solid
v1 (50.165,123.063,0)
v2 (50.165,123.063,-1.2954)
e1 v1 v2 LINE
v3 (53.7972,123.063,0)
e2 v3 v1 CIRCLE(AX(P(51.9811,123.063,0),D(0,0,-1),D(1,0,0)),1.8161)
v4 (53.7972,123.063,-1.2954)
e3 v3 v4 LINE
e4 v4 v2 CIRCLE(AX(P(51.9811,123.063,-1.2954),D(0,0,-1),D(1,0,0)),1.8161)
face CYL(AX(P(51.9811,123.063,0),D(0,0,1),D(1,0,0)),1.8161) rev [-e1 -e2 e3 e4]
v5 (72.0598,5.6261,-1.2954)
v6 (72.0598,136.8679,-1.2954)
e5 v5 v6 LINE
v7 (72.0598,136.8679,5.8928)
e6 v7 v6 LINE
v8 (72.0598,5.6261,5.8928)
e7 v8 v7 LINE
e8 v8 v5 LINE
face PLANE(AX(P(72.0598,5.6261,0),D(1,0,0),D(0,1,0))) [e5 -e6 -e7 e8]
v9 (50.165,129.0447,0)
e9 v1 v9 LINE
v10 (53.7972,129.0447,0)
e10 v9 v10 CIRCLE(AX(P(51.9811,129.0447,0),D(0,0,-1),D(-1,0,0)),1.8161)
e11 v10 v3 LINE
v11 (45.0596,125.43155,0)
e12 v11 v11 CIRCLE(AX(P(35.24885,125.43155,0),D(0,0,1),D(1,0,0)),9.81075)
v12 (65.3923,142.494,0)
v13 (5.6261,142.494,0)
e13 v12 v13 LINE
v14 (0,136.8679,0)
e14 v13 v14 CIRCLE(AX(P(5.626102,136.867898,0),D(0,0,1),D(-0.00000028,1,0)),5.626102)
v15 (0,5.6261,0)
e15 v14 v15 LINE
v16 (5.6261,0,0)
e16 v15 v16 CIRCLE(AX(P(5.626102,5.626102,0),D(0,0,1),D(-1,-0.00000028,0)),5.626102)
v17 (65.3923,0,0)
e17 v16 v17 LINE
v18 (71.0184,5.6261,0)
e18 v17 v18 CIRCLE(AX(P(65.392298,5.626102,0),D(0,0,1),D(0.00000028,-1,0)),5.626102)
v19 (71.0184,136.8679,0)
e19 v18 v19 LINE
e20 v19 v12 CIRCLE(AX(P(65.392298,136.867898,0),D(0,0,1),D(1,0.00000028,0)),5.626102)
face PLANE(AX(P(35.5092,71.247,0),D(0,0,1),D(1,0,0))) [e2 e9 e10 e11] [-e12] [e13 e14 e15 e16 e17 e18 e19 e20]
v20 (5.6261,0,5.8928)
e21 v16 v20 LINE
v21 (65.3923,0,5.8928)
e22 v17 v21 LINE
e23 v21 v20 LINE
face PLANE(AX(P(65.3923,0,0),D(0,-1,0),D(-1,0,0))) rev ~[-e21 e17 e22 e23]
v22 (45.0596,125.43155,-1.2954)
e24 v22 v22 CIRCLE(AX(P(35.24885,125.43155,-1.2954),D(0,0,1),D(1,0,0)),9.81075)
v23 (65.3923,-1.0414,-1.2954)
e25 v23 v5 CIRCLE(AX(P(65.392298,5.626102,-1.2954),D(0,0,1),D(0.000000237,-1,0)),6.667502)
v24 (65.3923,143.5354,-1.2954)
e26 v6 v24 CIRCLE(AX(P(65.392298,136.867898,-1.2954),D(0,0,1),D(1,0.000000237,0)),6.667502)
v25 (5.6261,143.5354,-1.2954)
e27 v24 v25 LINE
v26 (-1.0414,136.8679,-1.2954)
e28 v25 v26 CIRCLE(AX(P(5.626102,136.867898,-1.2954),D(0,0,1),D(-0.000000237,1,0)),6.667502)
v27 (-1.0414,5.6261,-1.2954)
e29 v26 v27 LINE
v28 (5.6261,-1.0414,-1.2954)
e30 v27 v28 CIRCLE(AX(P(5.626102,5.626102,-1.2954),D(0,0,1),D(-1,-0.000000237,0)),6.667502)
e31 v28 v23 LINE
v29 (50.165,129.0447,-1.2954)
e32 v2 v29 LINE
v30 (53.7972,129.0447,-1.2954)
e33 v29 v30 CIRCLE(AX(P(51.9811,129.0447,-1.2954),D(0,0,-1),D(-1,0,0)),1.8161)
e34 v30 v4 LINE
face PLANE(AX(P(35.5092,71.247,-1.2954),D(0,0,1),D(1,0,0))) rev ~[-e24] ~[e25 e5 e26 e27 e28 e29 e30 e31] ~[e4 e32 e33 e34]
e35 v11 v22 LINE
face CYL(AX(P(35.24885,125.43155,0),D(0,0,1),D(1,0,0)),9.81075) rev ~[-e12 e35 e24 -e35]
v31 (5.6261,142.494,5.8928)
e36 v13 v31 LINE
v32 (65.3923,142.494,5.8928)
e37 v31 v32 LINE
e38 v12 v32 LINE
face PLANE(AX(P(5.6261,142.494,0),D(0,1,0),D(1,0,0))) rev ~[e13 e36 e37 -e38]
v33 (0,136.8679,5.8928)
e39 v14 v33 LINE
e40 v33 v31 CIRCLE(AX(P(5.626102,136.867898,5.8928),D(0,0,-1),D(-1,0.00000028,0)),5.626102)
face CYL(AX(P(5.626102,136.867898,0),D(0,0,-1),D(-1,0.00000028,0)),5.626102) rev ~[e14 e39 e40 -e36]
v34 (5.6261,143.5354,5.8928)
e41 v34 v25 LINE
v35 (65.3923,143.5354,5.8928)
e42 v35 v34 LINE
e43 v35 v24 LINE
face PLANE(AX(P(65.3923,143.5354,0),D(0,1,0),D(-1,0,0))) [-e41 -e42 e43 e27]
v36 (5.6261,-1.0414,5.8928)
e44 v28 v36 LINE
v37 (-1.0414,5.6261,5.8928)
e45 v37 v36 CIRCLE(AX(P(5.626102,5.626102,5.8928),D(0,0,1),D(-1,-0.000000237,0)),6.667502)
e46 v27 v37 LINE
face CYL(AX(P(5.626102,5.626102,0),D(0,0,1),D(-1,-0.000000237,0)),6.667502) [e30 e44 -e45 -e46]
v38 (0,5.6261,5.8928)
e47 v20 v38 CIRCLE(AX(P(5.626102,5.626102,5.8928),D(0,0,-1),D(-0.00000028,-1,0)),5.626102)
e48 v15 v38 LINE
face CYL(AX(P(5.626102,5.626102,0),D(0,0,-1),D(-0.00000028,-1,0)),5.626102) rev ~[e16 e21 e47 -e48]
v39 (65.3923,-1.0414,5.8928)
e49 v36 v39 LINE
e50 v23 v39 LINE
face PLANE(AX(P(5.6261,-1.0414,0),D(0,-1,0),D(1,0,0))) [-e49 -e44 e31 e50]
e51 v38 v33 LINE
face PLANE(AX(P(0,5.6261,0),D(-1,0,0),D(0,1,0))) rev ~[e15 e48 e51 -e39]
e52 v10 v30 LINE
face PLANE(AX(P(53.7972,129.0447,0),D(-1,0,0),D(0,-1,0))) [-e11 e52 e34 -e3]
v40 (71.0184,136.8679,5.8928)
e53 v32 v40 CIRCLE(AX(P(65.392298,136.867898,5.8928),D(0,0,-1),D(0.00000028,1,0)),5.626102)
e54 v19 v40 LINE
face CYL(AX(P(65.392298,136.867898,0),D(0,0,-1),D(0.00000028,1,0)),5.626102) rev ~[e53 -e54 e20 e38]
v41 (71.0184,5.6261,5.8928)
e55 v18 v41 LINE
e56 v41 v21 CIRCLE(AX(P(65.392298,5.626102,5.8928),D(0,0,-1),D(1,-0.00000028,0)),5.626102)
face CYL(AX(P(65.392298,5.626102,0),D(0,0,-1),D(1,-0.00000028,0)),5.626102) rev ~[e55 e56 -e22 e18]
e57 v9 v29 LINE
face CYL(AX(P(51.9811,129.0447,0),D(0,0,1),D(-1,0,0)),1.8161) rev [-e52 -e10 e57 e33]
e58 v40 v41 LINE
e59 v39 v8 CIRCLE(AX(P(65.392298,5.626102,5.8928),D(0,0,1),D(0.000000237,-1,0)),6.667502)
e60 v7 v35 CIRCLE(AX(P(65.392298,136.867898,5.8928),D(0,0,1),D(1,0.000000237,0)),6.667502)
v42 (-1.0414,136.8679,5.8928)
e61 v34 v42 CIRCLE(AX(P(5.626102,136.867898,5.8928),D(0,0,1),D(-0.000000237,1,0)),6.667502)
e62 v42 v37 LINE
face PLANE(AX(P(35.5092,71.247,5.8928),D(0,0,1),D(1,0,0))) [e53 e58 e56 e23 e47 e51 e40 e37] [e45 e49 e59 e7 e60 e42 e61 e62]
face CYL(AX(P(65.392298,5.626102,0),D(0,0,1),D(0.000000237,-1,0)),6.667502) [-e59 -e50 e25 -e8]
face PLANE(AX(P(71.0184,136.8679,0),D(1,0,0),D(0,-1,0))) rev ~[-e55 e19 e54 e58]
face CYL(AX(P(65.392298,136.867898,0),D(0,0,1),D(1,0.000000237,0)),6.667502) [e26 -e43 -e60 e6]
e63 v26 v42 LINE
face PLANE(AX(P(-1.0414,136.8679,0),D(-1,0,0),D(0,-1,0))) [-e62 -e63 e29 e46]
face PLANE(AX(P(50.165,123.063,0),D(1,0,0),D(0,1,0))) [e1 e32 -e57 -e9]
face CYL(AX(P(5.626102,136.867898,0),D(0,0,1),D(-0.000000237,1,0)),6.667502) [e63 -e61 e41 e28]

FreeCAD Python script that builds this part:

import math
import FreeCAD as App
import Part
import Sketcher
Q = App.Units.Quantity

doc = App.newDocument("Part")
body = doc.addObject("PartDesign::Body", "Body")

# Sketch on XY plane
sketch1 = body.newObject("Sketcher::SketchObject", "Sketch")
sketch1.AttachmentSupport = (doc.getObject("XY_Plane"), [""])
sketch1.MapMode = "FlatFace"
sketch1.addGeometry([
    Part.ArcOfCircle(Part.Circle(App.Vector(5.6, 5.6, 0), App.Vector(0, 0, 1), 5.6), math.radians(-180), math.radians(-90)),  # 0
    Part.LineSegment(App.Vector(5.6, 0, 0), App.Vector(65.4, 0, 0)),  # 1
    Part.ArcOfCircle(Part.Circle(App.Vector(65.4, 5.6, 0), App.Vector(0, 0, 1), 5.6), math.radians(-90), math.radians(0)),  # 2
    Part.LineSegment(App.Vector(71, 5.6, 0), App.Vector(71, 136.9, 0)),  # 3
    Part.ArcOfCircle(Part.Circle(App.Vector(65.4, 136.9, 0), App.Vector(0, 0, 1), 5.6), math.radians(0), math.radians(90)),  # 4
    Part.LineSegment(App.Vector(65.4, 142.5, 0), App.Vector(5.6, 142.5, 0)),  # 5
    Part.ArcOfCircle(Part.Circle(App.Vector(5.6, 136.9, 0), App.Vector(0, 0, 1), 5.6), math.radians(90), math.radians(180)),  # 6
    Part.LineSegment(App.Vector(0, 136.9, 0), App.Vector(0, 5.6, 0)),  # 7
    Part.Circle(App.Vector(35.2, 125.4, 0), App.Vector(0, 0, 1), 9.8),  # 8
    Part.LineSegment(App.Vector(50.2, 123.1, 0), App.Vector(50.2, 129, 0)),  # 9
    Part.ArcOfCircle(Part.Circle(App.Vector(52, 129, 0), App.Vector(0, 0, 1), 1.8), math.radians(0), math.radians(180)),  # 10
    Part.LineSegment(App.Vector(53.8, 129, 0), App.Vector(53.8, 123.1, 0)),  # 11
    Part.ArcOfCircle(Part.Circle(App.Vector(52, 123.1, 0), App.Vector(0, 0, 1), 1.8), math.radians(180), math.radians(360)),  # 12
], False)
sketch1.addConstraint([
    Sketcher.Constraint("Tangent", 0, 2, 1, 1),
    Sketcher.Constraint("Tangent", 1, 2, 2, 1),
    Sketcher.Constraint("Tangent", 2, 2, 3, 1),
    Sketcher.Constraint("Tangent", 3, 2, 4, 1),
    Sketcher.Constraint("Tangent", 4, 2, 5, 1),
    Sketcher.Constraint("Tangent", 5, 2, 6, 1),
    Sketcher.Constraint("Tangent", 6, 2, 7, 1),
    Sketcher.Constraint("Tangent", 7, 2, 0, 1),
    Sketcher.Constraint("Tangent", 9, 2, 10, 2),
    Sketcher.Constraint("Tangent", 10, 1, 11, 1),
    Sketcher.Constraint("Tangent", 11, 2, 12, 2),
    Sketcher.Constraint("Tangent", 12, 1, 9, 1),
    Sketcher.Constraint("Horizontal", 1),
    Sketcher.Constraint("Vertical", 3),
    Sketcher.Constraint("Horizontal", 5),
    Sketcher.Constraint("Vertical", 7),
    Sketcher.Constraint("Vertical", 9),
    Sketcher.Constraint("Vertical", 11),
    Sketcher.Constraint("Equal", 0, 2),
    Sketcher.Constraint("Equal", 2, 4),
    Sketcher.Constraint("Equal", 4, 6),
    Sketcher.Constraint("PointOnObject", 0, 2, -1),
    Sketcher.Constraint("PointOnObject", 6, 2, -2),
    Sketcher.Constraint("Diameter", 8, Q("0.7725 in")),
    Sketcher.Constraint("Radius", 0, Q("0.2215001 in")),
    Sketcher.Constraint("Radius", 10, Q("0.0715 in")),
    Sketcher.Constraint("DistanceX", 1, 1, 1, 2, Q("2.353 in")),
    Sketcher.Constraint("DistanceY", 3, 1, 3, 2, Q("5.167 in")),
    Sketcher.Constraint("DistanceY", 9, 1, 9, 2, Q("0.2355 in")),
    Sketcher.Constraint("DistanceY", -1, 1, 12, 3, Q("4.845 in")),
    Sketcher.Constraint("DistanceX", -1, 1, 9, 2, Q("1.975 in")),
    Sketcher.Constraint("DistanceX", -1, 1, 8, 3, 35.24885),
    Sketcher.Constraint("DistanceY", -1, 1, 8, 3, 125.43155),
])
pad1 = body.newObject("PartDesign::Pad", "Pad")
pad1.Profile = sketch1
pad1.Length = Q("0.051 in")
pad1.Reversed = True

# Sketch on XY plane
sketch2 = body.newObject("Sketcher::SketchObject", "Sketch001")
sketch2.AttachmentSupport = (doc.getObject("XY_Plane"), [""])
sketch2.MapMode = "FlatFace"
sketch2.addGeometry([
    Part.ArcOfCircle(Part.Circle(App.Vector(6, 137, 0), App.Vector(0, 0, 1), 7), math.radians(90), math.radians(180)),  # 0
    Part.LineSegment(App.Vector(-1, 137, 0), App.Vector(-1, 6, 0)),  # 1
    Part.ArcOfCircle(Part.Circle(App.Vector(6, 6, 0), App.Vector(0, 0, 1), 7), math.radians(-180), math.radians(-90)),  # 2
    Part.LineSegment(App.Vector(6, -1, 0), App.Vector(65, -1, 0)),  # 3
    Part.ArcOfCircle(Part.Circle(App.Vector(65, 6, 0), App.Vector(0, 0, 1), 7), math.radians(-90), math.radians(0)),  # 4
    Part.LineSegment(App.Vector(72, 6, 0), App.Vector(72, 137, 0)),  # 5
    Part.ArcOfCircle(Part.Circle(App.Vector(65, 137, 0), App.Vector(0, 0, 1), 7), math.radians(0), math.radians(90)),  # 6
    Part.LineSegment(App.Vector(65, 144, 0), App.Vector(6, 144, 0)),  # 7
    Part.LineSegment(App.Vector(65, 0, 0), App.Vector(6, 0, 0)),  # 8
    Part.ArcOfCircle(Part.Circle(App.Vector(6, 6, 0), App.Vector(0, 0, 1), 6), math.radians(-180), math.radians(-90)),  # 9
    Part.LineSegment(App.Vector(0, 6, 0), App.Vector(0, 137, 0)),  # 10
    Part.ArcOfCircle(Part.Circle(App.Vector(6, 137, 0), App.Vector(0, 0, 1), 6), math.radians(90), math.radians(180)),  # 11
    Part.LineSegment(App.Vector(6, 142, 0), App.Vector(65, 142, 0)),  # 12
    Part.ArcOfCircle(Part.Circle(App.Vector(65, 137, 0), App.Vector(0, 0, 1), 6), math.radians(0), math.radians(90)),  # 13
    Part.LineSegment(App.Vector(71, 137, 0), App.Vector(71, 6, 0)),  # 14
    Part.ArcOfCircle(Part.Circle(App.Vector(65, 6, 0), App.Vector(0, 0, 1), 6), math.radians(-90), math.radians(0)),  # 15
], False)
sketch2.addConstraint([
    Sketcher.Constraint("Tangent", 0, 2, 1, 1),
    Sketcher.Constraint("Tangent", 1, 2, 2, 1),
    Sketcher.Constraint("Tangent", 2, 2, 3, 1),
    Sketcher.Constraint("Tangent", 3, 2, 4, 1),
    Sketcher.Constraint("Tangent", 4, 2, 5, 1),
    Sketcher.Constraint("Tangent", 5, 2, 6, 1),
    Sketcher.Constraint("Tangent", 6, 2, 7, 1),
    Sketcher.Constraint("Tangent", 7, 2, 0, 1),
    Sketcher.Constraint("Tangent", 8, 2, 9, 2),
    Sketcher.Constraint("Tangent", 9, 1, 10, 1),
    Sketcher.Constraint("Tangent", 10, 2, 11, 2),
    Sketcher.Constraint("Tangent", 11, 1, 12, 1),
    Sketcher.Constraint("Tangent", 12, 2, 13, 2),
    Sketcher.Constraint("Tangent", 13, 1, 14, 1),
    Sketcher.Constraint("Tangent", 14, 2, 15, 2),
    Sketcher.Constraint("Tangent", 15, 1, 8, 1),
    Sketcher.Constraint("Vertical", 1),
    Sketcher.Constraint("Horizontal", 3),
    Sketcher.Constraint("Vertical", 5),
    Sketcher.Constraint("Horizontal", 7),
    Sketcher.Constraint("Horizontal", 8),
    Sketcher.Constraint("Vertical", 10),
    Sketcher.Constraint("Horizontal", 12),
    Sketcher.Constraint("Vertical", 14),
    Sketcher.Constraint("Coincident", 9, 3, 2, 3),
    Sketcher.Constraint("Coincident", 11, 3, 0, 3),
    Sketcher.Constraint("Coincident", 13, 3, 6, 3),
    Sketcher.Constraint("Equal", 0, 2),
    Sketcher.Constraint("Equal", 2, 4),
    Sketcher.Constraint("Equal", 4, 6),
    Sketcher.Constraint("Equal", 13, 15),
    Sketcher.Constraint("PointOnObject", 8, 2, -1),
    Sketcher.Constraint("PointOnObject", 9, 1, -2),
    Sketcher.Constraint("Radius", 0, Q("0.2625001 in")),
    Sketcher.Constraint("Radius", 9, Q("0.2215001 in")),
    Sketcher.Constraint("DistanceX", 3, 1, 3, 2, Q("2.353 in")),
    Sketcher.Constraint("DistanceY", 1, 2, 1, 1, Q("5.167 in")),
])
pad2 = body.newObject("PartDesign::Pad", "Pad001")
pad2.Profile = sketch2
pad2.Type = "TwoLengths"
pad2.Length = Q("0.232 in")
pad2.Length2 = Q("0.051 in")

doc.recompute()
